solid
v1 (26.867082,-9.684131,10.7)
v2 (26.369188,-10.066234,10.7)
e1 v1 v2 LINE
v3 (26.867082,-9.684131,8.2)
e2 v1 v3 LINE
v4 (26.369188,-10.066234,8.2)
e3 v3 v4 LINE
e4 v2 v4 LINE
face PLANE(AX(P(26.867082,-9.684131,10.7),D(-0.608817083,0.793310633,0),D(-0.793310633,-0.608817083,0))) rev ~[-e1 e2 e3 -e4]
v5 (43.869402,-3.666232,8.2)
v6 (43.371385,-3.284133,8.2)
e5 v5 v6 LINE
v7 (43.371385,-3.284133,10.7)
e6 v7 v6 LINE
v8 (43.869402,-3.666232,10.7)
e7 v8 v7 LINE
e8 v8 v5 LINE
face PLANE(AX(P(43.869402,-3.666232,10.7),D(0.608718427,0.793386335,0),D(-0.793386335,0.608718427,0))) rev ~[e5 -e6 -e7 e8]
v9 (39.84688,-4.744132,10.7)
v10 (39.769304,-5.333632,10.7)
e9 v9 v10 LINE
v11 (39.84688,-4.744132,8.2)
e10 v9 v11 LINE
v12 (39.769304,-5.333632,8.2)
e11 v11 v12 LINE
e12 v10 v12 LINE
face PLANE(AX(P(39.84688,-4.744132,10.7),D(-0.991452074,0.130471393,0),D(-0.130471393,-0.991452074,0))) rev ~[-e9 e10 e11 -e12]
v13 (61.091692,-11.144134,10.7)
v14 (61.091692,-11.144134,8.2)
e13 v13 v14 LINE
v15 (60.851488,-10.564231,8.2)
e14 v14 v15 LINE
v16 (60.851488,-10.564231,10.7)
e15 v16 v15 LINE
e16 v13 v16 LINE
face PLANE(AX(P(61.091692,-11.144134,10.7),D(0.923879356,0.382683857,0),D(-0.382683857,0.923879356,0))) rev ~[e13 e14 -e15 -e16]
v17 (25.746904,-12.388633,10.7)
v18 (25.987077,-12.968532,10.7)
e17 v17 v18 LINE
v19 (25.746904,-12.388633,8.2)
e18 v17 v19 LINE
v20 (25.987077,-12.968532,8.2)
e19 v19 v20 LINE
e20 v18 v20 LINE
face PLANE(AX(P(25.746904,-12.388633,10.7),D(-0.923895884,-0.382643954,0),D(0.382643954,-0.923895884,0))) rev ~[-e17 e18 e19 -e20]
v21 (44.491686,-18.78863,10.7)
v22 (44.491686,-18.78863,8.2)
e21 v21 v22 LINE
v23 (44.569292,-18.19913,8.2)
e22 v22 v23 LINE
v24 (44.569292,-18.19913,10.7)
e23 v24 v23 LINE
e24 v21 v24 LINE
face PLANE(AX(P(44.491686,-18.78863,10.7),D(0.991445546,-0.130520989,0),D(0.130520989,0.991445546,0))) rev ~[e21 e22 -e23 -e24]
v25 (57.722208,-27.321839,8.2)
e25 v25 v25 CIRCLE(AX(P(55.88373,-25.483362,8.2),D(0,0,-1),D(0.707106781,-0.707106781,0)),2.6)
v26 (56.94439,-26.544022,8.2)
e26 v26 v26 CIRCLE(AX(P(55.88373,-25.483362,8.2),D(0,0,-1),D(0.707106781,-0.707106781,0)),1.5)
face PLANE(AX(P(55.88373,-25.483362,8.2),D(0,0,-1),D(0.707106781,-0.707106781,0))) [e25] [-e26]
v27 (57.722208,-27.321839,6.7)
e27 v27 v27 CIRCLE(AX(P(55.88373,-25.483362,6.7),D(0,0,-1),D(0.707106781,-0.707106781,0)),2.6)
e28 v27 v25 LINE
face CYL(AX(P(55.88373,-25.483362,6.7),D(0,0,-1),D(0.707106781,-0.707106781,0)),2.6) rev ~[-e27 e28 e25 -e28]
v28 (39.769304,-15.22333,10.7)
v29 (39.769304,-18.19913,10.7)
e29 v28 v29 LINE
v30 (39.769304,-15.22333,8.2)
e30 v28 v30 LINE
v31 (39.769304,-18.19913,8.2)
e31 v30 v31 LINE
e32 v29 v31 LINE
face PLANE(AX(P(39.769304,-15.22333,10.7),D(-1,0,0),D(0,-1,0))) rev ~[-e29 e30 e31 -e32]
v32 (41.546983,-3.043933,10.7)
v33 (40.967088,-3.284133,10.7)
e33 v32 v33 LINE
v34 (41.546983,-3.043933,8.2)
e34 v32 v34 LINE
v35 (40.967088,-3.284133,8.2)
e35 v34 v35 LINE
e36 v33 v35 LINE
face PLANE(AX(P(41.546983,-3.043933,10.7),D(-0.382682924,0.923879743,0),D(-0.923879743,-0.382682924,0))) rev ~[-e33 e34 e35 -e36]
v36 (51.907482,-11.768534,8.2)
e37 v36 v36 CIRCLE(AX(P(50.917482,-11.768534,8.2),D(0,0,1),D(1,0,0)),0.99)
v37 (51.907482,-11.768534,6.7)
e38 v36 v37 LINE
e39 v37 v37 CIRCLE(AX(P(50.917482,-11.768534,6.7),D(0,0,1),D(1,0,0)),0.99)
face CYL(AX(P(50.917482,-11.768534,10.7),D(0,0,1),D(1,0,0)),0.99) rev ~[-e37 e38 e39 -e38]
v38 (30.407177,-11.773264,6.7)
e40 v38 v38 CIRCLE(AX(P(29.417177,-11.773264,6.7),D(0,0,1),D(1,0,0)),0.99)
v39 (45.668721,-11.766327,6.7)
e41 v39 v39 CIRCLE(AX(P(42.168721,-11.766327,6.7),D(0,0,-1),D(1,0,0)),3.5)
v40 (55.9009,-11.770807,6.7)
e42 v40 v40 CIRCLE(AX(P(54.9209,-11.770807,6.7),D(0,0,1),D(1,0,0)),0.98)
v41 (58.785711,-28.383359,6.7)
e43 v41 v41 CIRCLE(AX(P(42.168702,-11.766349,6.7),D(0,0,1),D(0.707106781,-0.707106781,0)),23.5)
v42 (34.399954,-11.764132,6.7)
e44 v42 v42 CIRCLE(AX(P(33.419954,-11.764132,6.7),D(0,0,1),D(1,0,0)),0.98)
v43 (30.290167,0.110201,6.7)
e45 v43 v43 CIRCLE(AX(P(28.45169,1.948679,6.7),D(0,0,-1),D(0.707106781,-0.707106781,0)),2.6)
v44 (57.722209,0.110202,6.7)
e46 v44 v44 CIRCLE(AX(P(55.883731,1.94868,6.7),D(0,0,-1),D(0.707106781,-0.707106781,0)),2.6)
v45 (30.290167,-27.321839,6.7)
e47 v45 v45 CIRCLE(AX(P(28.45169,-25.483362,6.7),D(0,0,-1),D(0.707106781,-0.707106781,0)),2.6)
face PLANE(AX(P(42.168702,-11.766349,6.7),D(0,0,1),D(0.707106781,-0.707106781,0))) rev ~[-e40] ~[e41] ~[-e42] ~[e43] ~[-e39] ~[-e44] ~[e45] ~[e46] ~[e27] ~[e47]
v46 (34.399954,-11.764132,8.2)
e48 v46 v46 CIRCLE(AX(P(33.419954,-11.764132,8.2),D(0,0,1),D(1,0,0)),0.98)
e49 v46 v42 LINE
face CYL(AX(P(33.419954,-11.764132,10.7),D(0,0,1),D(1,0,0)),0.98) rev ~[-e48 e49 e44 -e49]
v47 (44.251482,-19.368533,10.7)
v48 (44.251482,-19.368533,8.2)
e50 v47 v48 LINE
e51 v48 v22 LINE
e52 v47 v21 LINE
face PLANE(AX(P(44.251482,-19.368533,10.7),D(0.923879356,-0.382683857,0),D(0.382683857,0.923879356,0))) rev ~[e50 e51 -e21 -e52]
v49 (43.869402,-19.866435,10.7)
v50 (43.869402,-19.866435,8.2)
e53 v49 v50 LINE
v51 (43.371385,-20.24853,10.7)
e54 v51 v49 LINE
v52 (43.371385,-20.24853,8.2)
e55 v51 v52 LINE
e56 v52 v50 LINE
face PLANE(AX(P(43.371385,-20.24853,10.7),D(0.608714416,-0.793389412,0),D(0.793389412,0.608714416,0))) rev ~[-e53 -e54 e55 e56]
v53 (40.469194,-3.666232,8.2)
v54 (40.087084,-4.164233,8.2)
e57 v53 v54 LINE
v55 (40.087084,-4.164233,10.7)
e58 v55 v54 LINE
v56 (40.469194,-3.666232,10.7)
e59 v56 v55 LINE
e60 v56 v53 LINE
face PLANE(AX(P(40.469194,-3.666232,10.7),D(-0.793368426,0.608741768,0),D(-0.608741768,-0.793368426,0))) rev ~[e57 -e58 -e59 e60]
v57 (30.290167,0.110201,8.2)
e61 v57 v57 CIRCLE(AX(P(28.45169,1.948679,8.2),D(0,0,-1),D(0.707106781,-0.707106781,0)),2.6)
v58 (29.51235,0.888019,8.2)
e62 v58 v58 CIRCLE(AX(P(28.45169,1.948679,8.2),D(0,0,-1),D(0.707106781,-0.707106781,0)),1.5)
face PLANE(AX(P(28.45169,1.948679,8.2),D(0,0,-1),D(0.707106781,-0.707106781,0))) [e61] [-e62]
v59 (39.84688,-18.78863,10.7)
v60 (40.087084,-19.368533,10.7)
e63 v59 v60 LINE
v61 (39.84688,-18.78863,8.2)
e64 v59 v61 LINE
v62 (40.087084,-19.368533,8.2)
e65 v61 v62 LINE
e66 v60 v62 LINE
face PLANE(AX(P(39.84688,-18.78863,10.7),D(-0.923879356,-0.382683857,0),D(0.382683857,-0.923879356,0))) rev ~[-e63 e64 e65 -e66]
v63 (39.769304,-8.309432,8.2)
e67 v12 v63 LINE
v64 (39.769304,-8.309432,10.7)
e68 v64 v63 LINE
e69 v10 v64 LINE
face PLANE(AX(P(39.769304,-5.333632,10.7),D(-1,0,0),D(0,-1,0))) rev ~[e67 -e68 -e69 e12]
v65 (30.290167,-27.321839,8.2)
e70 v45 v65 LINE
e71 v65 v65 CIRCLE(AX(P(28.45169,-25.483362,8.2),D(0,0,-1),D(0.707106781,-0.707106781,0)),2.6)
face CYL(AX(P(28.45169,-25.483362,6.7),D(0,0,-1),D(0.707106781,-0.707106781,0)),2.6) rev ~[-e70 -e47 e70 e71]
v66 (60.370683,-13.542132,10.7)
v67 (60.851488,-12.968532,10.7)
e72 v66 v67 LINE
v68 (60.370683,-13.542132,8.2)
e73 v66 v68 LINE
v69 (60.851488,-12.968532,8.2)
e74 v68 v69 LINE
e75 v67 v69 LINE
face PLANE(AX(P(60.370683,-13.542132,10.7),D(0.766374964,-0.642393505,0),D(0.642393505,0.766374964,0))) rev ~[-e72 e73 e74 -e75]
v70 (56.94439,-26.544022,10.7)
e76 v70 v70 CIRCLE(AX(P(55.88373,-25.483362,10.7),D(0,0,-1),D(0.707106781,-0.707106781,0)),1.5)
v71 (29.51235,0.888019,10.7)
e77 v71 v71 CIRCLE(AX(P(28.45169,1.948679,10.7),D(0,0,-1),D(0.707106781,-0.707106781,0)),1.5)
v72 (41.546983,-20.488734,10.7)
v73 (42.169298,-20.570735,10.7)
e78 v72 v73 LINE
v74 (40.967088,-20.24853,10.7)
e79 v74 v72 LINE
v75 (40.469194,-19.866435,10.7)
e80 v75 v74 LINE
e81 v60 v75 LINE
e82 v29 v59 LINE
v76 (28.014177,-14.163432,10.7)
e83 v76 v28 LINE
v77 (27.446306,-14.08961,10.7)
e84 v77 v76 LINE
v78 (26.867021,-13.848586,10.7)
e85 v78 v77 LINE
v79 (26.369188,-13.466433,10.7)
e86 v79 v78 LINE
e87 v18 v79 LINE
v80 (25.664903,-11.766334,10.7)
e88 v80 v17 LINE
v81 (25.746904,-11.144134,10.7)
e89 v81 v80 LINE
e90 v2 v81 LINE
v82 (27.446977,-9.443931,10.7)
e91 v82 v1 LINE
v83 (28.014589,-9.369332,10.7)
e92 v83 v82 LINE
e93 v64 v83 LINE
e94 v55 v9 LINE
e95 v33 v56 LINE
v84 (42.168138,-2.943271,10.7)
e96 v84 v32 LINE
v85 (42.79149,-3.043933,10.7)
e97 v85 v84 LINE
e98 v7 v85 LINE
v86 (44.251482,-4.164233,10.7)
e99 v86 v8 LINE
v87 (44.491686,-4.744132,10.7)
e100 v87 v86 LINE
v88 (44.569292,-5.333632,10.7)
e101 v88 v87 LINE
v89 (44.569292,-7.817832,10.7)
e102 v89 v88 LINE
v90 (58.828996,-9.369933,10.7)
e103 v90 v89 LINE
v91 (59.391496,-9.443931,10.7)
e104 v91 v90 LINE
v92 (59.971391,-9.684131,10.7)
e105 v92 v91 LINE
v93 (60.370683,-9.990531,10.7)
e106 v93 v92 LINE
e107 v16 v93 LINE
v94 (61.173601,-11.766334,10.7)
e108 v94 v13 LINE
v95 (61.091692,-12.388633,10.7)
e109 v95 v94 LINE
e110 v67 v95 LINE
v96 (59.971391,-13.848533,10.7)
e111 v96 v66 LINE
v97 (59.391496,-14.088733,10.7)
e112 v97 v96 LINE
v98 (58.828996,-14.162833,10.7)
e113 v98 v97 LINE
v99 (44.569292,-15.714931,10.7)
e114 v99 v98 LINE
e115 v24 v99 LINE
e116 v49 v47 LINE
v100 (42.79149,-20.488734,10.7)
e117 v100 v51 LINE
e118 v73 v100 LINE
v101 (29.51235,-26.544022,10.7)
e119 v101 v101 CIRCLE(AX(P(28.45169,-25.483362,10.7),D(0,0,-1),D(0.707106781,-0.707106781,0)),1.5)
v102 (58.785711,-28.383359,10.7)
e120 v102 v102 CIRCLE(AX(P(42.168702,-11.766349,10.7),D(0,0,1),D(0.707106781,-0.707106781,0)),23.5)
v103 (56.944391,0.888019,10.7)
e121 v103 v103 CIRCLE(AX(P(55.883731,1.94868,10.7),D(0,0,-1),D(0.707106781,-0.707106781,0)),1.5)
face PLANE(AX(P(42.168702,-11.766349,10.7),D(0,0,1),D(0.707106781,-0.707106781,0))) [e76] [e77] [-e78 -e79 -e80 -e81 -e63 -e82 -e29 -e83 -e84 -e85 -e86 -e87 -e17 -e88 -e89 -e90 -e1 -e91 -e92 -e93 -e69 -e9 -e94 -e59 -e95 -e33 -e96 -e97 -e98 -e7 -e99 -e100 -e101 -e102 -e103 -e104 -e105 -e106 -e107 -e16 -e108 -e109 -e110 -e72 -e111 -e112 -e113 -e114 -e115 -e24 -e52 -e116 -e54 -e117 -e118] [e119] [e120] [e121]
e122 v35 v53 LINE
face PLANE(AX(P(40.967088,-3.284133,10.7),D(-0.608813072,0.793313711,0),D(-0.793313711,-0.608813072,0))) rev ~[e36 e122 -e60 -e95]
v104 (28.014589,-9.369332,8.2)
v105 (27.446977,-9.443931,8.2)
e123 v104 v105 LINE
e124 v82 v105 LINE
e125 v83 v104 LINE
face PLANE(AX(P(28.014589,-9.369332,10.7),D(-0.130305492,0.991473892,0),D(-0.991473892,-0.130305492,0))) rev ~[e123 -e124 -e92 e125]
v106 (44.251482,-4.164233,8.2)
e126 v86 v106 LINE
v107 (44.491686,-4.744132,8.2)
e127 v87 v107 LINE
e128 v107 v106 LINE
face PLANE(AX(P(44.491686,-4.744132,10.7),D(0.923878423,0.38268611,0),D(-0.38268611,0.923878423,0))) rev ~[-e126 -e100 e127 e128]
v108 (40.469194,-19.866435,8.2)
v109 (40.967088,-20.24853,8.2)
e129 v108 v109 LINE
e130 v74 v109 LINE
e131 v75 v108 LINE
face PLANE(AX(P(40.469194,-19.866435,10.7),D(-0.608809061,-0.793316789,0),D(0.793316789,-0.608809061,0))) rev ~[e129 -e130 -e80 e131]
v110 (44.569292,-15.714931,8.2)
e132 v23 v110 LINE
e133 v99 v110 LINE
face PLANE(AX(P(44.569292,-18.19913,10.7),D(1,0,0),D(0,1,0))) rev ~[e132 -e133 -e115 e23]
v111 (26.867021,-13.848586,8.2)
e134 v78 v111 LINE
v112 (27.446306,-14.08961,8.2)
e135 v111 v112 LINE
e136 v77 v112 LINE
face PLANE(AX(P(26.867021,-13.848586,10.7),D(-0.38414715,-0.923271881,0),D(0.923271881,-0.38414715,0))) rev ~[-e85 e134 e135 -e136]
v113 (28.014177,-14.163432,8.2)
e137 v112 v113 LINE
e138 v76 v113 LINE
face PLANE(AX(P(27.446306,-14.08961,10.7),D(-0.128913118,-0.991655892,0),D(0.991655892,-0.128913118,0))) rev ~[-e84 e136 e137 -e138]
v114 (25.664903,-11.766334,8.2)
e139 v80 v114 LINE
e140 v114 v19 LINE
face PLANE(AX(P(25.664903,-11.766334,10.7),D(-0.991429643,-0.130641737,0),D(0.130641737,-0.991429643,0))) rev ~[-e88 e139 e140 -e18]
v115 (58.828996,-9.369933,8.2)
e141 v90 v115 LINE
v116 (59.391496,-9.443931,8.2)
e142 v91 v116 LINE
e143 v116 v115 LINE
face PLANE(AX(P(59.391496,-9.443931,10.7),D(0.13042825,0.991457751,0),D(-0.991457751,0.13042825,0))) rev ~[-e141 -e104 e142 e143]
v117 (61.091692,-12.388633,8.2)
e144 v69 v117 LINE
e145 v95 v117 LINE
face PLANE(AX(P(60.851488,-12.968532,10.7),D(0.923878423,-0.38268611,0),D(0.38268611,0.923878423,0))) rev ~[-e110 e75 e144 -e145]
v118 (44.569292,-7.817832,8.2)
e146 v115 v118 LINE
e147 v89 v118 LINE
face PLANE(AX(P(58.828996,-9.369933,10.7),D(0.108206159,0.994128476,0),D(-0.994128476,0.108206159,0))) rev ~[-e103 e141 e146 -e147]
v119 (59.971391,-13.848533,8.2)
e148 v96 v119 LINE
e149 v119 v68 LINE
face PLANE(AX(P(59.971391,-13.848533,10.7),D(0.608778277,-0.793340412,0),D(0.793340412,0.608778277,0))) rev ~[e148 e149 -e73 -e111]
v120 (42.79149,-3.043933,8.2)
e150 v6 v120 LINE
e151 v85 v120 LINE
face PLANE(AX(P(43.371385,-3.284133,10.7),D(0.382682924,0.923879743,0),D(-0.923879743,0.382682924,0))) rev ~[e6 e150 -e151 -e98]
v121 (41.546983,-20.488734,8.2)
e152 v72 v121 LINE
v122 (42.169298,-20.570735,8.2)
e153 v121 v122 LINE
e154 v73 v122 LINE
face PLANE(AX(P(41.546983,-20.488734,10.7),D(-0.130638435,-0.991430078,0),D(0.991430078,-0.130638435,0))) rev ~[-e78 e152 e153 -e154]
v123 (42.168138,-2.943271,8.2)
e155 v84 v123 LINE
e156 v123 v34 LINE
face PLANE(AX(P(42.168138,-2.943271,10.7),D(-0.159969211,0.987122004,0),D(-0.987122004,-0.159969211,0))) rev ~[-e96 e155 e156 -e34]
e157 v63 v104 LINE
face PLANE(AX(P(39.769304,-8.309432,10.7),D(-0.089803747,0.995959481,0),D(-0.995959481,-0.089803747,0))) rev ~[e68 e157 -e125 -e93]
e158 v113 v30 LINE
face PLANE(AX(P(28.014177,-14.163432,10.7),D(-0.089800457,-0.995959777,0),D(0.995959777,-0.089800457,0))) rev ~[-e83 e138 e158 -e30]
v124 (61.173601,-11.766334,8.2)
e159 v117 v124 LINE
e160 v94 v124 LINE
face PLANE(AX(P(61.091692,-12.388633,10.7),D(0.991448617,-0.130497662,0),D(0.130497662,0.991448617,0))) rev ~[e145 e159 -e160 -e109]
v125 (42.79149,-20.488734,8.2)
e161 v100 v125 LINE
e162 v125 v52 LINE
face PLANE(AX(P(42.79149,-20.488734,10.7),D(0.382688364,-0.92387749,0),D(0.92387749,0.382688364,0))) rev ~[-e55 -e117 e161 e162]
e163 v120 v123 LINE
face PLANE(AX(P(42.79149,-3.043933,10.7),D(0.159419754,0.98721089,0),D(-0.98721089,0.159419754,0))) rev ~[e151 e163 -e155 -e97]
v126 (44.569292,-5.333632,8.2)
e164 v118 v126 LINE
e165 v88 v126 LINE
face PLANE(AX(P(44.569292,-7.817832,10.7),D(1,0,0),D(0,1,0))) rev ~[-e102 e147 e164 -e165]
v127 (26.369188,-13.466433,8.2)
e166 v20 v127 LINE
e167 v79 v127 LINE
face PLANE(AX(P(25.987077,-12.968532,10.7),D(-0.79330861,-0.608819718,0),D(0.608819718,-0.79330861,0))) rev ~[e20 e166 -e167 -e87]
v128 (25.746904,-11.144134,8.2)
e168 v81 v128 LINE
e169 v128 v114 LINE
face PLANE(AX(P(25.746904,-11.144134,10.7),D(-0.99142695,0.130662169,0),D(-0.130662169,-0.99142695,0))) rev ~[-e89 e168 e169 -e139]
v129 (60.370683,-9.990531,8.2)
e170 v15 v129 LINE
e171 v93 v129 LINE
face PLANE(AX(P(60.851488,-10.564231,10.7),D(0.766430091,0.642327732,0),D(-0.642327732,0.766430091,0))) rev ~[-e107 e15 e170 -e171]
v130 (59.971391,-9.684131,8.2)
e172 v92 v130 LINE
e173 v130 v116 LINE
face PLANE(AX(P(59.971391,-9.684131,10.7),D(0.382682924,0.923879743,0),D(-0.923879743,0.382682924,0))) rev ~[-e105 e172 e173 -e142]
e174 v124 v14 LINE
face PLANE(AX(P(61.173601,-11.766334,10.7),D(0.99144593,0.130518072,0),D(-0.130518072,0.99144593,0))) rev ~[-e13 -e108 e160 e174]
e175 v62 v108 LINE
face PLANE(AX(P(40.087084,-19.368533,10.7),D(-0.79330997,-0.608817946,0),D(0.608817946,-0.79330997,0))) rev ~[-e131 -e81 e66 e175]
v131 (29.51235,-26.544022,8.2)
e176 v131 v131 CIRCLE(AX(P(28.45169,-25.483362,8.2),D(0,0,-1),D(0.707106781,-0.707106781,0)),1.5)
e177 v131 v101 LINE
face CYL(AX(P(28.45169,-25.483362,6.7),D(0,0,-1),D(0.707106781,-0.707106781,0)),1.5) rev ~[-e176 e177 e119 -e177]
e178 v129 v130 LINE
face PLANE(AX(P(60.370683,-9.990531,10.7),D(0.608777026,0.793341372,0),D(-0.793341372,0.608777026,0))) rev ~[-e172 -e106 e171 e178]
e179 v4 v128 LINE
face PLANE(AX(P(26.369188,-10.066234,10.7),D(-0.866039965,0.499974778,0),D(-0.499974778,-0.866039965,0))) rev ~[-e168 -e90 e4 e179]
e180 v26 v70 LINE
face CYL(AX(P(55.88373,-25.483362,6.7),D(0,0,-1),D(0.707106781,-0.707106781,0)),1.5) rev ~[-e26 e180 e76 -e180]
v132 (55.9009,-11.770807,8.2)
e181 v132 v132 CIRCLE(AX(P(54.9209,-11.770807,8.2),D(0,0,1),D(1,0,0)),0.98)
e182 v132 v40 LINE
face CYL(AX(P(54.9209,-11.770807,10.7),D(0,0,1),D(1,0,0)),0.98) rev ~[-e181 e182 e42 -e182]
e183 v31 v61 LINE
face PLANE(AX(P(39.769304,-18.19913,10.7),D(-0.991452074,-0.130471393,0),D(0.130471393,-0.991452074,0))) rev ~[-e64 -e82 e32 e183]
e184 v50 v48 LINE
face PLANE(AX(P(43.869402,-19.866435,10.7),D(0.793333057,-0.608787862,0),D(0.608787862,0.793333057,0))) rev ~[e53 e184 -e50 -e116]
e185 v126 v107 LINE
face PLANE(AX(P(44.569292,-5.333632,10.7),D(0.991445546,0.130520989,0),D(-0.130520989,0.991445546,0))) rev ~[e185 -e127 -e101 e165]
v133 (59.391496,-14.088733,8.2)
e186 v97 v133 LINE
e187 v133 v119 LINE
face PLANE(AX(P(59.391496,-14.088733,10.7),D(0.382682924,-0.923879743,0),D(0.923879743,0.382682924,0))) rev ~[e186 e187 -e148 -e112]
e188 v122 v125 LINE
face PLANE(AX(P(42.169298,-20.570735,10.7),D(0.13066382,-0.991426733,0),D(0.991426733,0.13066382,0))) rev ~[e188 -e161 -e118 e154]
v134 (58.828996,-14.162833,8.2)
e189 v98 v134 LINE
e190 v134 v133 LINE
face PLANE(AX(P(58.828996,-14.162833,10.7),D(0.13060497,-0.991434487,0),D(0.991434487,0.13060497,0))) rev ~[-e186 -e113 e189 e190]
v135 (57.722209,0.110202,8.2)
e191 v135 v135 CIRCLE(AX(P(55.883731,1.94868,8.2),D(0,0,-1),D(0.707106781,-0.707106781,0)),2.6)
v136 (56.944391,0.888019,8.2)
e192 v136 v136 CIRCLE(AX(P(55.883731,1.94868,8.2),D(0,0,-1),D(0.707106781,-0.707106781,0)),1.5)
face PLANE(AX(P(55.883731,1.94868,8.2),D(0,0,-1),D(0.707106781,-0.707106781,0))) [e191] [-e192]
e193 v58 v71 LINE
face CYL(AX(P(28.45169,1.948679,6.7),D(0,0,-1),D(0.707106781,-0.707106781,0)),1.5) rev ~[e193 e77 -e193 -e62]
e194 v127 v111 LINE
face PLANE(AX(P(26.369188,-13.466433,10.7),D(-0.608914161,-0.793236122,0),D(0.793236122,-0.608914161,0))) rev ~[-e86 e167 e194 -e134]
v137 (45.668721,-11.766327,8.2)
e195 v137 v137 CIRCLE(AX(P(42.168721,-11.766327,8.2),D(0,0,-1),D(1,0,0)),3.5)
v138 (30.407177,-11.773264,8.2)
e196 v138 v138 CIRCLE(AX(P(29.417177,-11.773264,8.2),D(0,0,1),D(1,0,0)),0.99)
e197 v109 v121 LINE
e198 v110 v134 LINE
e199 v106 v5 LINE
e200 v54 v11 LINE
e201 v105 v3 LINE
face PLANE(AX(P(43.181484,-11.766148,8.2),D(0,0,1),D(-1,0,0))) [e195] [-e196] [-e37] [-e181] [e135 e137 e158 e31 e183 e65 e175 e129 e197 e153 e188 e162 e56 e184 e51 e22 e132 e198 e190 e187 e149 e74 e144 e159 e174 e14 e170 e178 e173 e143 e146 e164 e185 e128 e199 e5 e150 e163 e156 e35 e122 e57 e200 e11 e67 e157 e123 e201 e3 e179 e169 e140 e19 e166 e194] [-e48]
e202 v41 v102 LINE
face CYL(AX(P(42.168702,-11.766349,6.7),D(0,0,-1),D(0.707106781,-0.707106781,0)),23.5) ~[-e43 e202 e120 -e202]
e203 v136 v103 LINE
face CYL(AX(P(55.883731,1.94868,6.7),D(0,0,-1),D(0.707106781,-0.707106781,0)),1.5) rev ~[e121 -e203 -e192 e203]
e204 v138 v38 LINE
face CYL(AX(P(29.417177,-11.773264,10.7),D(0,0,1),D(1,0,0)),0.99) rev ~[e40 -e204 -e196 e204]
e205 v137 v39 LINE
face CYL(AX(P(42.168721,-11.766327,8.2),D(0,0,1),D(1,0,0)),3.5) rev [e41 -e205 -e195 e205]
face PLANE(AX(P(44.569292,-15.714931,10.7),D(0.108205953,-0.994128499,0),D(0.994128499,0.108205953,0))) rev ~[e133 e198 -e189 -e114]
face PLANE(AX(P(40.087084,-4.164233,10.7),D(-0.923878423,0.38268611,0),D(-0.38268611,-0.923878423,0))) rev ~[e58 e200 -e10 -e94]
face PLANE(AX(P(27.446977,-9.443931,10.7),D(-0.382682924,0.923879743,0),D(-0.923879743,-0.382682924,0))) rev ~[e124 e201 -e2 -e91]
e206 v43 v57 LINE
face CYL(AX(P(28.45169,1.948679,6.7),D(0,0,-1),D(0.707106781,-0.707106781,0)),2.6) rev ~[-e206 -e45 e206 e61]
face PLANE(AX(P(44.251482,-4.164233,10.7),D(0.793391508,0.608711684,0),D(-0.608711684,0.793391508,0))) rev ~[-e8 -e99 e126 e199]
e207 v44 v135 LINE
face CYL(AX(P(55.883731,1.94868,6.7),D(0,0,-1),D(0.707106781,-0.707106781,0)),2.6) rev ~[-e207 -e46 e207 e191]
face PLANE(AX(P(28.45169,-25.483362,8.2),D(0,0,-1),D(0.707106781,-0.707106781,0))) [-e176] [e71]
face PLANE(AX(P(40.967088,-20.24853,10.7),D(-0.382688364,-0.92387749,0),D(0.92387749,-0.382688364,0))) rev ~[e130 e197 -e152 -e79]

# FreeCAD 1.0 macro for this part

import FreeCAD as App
import Part
import Sketcher

doc = App.newDocument("Part")
body = doc.addObject("PartDesign::Body", "Body")

# Sketch on XY plane
sketch1 = body.newObject("Sketcher::SketchObject", "Sketch")
sketch1.AttachmentSupport = (doc.getObject("XY_Plane"), [""])
sketch1.MapMode = "FlatFace"
sketch1.AttachmentOffset = App.Placement(App.Vector(0, 0, -7), App.Rotation())
sketch1.addGeometry(Part.Circle(App.Vector(100.138196, 1.761986, 0), App.Vector(0, 0, 1), 0.99), False)
sketch1.addConstraint([
    Sketcher.Constraint("Diameter", 0, 1.98),
    Sketcher.Constraint("DistanceX", -1, 1, 0, 3, 100.138196),
    Sketcher.Constraint("DistanceY", -1, 1, 0, 3, 1.761986),
])
pad1 = body.newObject("PartDesign::Pad", "Pad")
pad1.Profile = sketch1
pad1.Length = 4
body2 = doc.addObject("PartDesign::Body", "Body001")

# Sketch on XY plane
sketch2 = body2.newObject("Sketcher::SketchObject", "Sketch001")
sketch2.AttachmentSupport = (doc.getObject("XY_Plane001"), [""])
sketch2.MapMode = "FlatFace"
sketch2.AttachmentOffset = App.Placement(App.Vector(0, 0, -7), App.Rotation())
sketch2.addGeometry(Part.Circle(App.Vector(104.140973, 1.752854, 0), App.Vector(0, 0, 1), 0.98), False)
sketch2.addConstraint([
    Sketcher.Constraint("Diameter", 0, 1.96),
    Sketcher.Constraint("DistanceX", -1, 1, 0, 3, 104.140973),
    Sketcher.Constraint("DistanceY", -1, 1, 0, 3, 1.752854),
])
pad2 = body2.newObject("PartDesign::Pad", "Pad001")
pad2.Profile = sketch2
pad2.Length = 4
body3 = doc.addObject("PartDesign::Body", "Body002")

# Sketch on XY plane
sketch3 = body3.newObject("Sketcher::SketchObject", "Sketch002")
sketch3.AttachmentSupport = (doc.getObject("XY_Plane002"), [""])
sketch3.MapMode = "FlatFace"
sketch3.AttachmentOffset = App.Placement(App.Vector(0, 0, -7), App.Rotation())
sketch3.addGeometry(Part.Circle(App.Vector(121.638501, 1.757256, 0), App.Vector(0, 0, 1), 0.99), False)
sketch3.addConstraint([
    Sketcher.Constraint("Diameter", 0, 1.98),
    Sketcher.Constraint("DistanceX", -1, 1, 0, 3, 121.638501),
    Sketcher.Constraint("DistanceY", -1, 1, 0, 3, 1.757256),
])
pad3 = body3.newObject("PartDesign::Pad", "Pad002")
pad3.Profile = sketch3
pad3.Length = 4
body4 = doc.addObject("PartDesign::Body", "Body003")

# Sketch on XY plane
sketch4 = body4.newObject("Sketcher::SketchObject", "Sketch003")
sketch4.AttachmentSupport = (doc.getObject("XY_Plane003"), [""])
sketch4.MapMode = "FlatFace"
sketch4.AttachmentOffset = App.Placement(App.Vector(0, 0, -7), App.Rotation())
sketch4.addGeometry(Part.Circle(App.Vector(125.641919, 1.759529, 0), App.Vector(0, 0, 1), 0.98), False)
sketch4.addConstraint([
    Sketcher.Constraint("Diameter", 0, 1.96),
    Sketcher.Constraint("DistanceX", -1, 1, 0, 3, 125.641919),
    Sketcher.Constraint("DistanceY", -1, 1, 0, 3, 1.759529),
])
pad4 = body4.newObject("PartDesign::Pad", "Pad003")
pad4.Profile = sketch4
pad4.Length = 4
body5 = doc.addObject("PartDesign::Body", "Body004")

# Sketch on XY plane
sketch5 = body5.newObject("Sketcher::SketchObject", "Sketch004")
sketch5.AttachmentSupport = (doc.getObject("XY_Plane004"), [""])
sketch5.MapMode = "FlatFace"
sketch5.AttachmentOffset = App.Placement(App.Vector(0, 0, 32.5), App.Rotation())
sketch5.addGeometry(Part.Circle(App.Vector(115.082764, -1.512482, 0), App.Vector(0, 0, 1), 3.5), False)
sketch5.addConstraint([
    Sketcher.Constraint("Diameter", 0, 7.0),
    Sketcher.Constraint("DistanceX", -1, 1, 0, 3, 115.082764),
    Sketcher.Constraint("DistanceY", 0, 3, -1, 1, 1.512482),
])
pad5 = body5.newObject("PartDesign::Pad", "Pad004")
pad5.Profile = sketch5
pad5.Length = 1.5
body6 = doc.addObject("PartDesign::Body", "Body005")

# Sketch on XY plane
sketch6 = body6.newObject("Sketcher::SketchObject", "Sketch005")
sketch6.AttachmentSupport = (doc.getObject("XY_Plane005"), [""])
sketch6.MapMode = "FlatFace"
sketch6.AttachmentOffset = App.Placement(App.Vector(0, 0, 32.5), App.Rotation())
sketch6.addGeometry([
    Part.LineSegment(App.Vector(406.834, 56.5716, 0), App.Vector(418.588715, 55.5117, 0)),  # 0
    Part.LineSegment(App.Vector(418.588715, 55.5117, 0), App.Vector(418.588715, 52.5359, 0)),  # 1
    Part.LineSegment(App.Vector(418.588715, 52.5359, 0), App.Vector(418.666291, 51.9464, 0)),  # 2
    Part.LineSegment(App.Vector(418.666291, 51.9464, 0), App.Vector(418.906495, 51.366501, 0)),  # 3
    Part.LineSegment(App.Vector(418.906495, 51.366501, 0), App.Vector(419.288605, 50.8685, 0)),  # 4
    Part.LineSegment(App.Vector(419.288605, 50.8685, 0), App.Vector(419.786499, 50.486401, 0)),  # 5
    Part.LineSegment(App.Vector(419.786499, 50.486401, 0), App.Vector(420.366394, 50.246201, 0)),  # 6
    Part.LineSegment(App.Vector(420.366394, 50.246201, 0), App.Vector(420.987549, 50.145539, 0)),  # 7
    Part.LineSegment(App.Vector(420.987549, 50.145539, 0), App.Vector(421.610901, 50.246201, 0)),  # 8
    Part.LineSegment(App.Vector(421.610901, 50.246201, 0), App.Vector(422.190796, 50.486401, 0)),  # 9
    Part.LineSegment(App.Vector(422.190796, 50.486401, 0), App.Vector(422.688813, 50.8685, 0)),  # 10
    Part.LineSegment(App.Vector(422.688813, 50.8685, 0), App.Vector(423.070893, 51.366501, 0)),  # 11
    Part.LineSegment(App.Vector(423.070893, 51.366501, 0), App.Vector(423.311097, 51.9464, 0)),  # 12
    Part.LineSegment(App.Vector(423.311097, 51.9464, 0), App.Vector(423.388703, 52.5359, 0)),  # 13
    Part.LineSegment(App.Vector(423.388703, 52.5359, 0), App.Vector(423.388703, 55.0201, 0)),  # 14
    Part.LineSegment(App.Vector(423.388703, 55.0201, 0), App.Vector(437.648407, 56.572201, 0)),  # 15
    Part.LineSegment(App.Vector(437.648407, 56.572201, 0), App.Vector(438.210907, 56.646199, 0)),  # 16
    Part.LineSegment(App.Vector(438.210907, 56.646199, 0), App.Vector(438.790802, 56.886399, 0)),  # 17
    Part.LineSegment(App.Vector(438.790802, 56.886399, 0), App.Vector(439.190094, 57.192799, 0)),  # 18
    Part.LineSegment(App.Vector(439.190094, 57.192799, 0), App.Vector(439.670899, 57.766499, 0)),  # 19
    Part.LineSegment(App.Vector(439.670899, 57.766499, 0), App.Vector(439.911103, 58.346402, 0)),  # 20
    Part.LineSegment(App.Vector(439.911103, 58.346402, 0), App.Vector(439.993012, 58.968602, 0)),  # 21
    Part.LineSegment(App.Vector(439.993012, 58.968602, 0), App.Vector(439.911103, 59.590901, 0)),  # 22
    Part.LineSegment(App.Vector(439.911103, 59.590901, 0), App.Vector(439.670899, 60.1708, 0)),  # 23
    Part.LineSegment(App.Vector(439.670899, 60.1708, 0), App.Vector(439.190094, 60.7444, 0)),  # 24
    Part.LineSegment(App.Vector(439.190094, 60.7444, 0), App.Vector(438.790802, 61.050801, 0)),  # 25
    Part.LineSegment(App.Vector(438.790802, 61.050801, 0), App.Vector(438.210907, 61.291001, 0)),  # 26
    Part.LineSegment(App.Vector(438.210907, 61.291001, 0), App.Vector(437.648407, 61.365101, 0)),  # 27
    Part.LineSegment(App.Vector(437.648407, 61.365101, 0), App.Vector(423.388703, 62.917199, 0)),  # 28
    Part.LineSegment(App.Vector(423.388703, 62.917199, 0), App.Vector(423.388703, 65.401398, 0)),  # 29
    Part.LineSegment(App.Vector(423.388703, 65.401398, 0), App.Vector(423.311097, 65.990898, 0)),  # 30
    Part.LineSegment(App.Vector(423.311097, 65.990898, 0), App.Vector(423.070893, 66.570801, 0)),  # 31
    Part.LineSegment(App.Vector(423.070893, 66.570801, 0), App.Vector(422.688813, 67.068703, 0)),  # 32
    Part.LineSegment(App.Vector(422.688813, 67.068703, 0), App.Vector(422.190796, 67.450798, 0)),  # 33
    Part.LineSegment(App.Vector(422.190796, 67.450798, 0), App.Vector(421.610901, 67.691002, 0)),  # 34
    Part.LineSegment(App.Vector(421.610901, 67.691002, 0), App.Vector(420.988709, 67.773003, 0)),  # 35
    Part.LineSegment(App.Vector(420.988709, 67.773003, 0), App.Vector(420.366394, 67.691002, 0)),  # 36
    Part.LineSegment(App.Vector(420.366394, 67.691002, 0), App.Vector(419.786499, 67.450798, 0)),  # 37
    Part.LineSegment(App.Vector(419.786499, 67.450798, 0), App.Vector(419.288605, 67.068703, 0)),  # 38
    Part.LineSegment(App.Vector(419.288605, 67.068703, 0), App.Vector(418.906495, 66.570801, 0)),  # 39
    Part.LineSegment(App.Vector(418.906495, 66.570801, 0), App.Vector(418.666291, 65.990898, 0)),  # 40
    Part.LineSegment(App.Vector(418.666291, 65.990898, 0), App.Vector(418.588715, 65.401398, 0)),  # 41
    Part.LineSegment(App.Vector(418.588715, 65.401398, 0), App.Vector(418.588715, 62.425598, 0)),  # 42
    Part.LineSegment(App.Vector(418.588715, 62.425598, 0), App.Vector(406.833588, 61.3657, 0)),  # 43
    Part.LineSegment(App.Vector(406.833588, 61.3657, 0), App.Vector(406.265717, 61.291878, 0)),  # 44
    Part.LineSegment(App.Vector(406.265717, 61.291878, 0), App.Vector(405.686432, 61.050854, 0)),  # 45
    Part.LineSegment(App.Vector(405.686432, 61.050854, 0), App.Vector(405.188599, 60.668701, 0)),  # 46
    Part.LineSegment(App.Vector(405.188599, 60.668701, 0), App.Vector(404.806488, 60.1708, 0)),  # 47
    Part.LineSegment(App.Vector(404.806488, 60.1708, 0), App.Vector(404.566315, 59.590901, 0)),  # 48
    Part.LineSegment(App.Vector(404.566315, 59.590901, 0), App.Vector(404.484314, 58.968602, 0)),  # 49
    Part.LineSegment(App.Vector(404.484314, 58.968602, 0), App.Vector(404.566315, 58.346402, 0)),  # 50
    Part.LineSegment(App.Vector(404.566315, 58.346402, 0), App.Vector(405.188599, 57.268502, 0)),  # 51
    Part.LineSegment(App.Vector(405.188599, 57.268502, 0), App.Vector(405.686493, 56.886399, 0)),  # 52
    Part.LineSegment(App.Vector(405.686493, 56.886399, 0), App.Vector(406.266388, 56.646199, 0)),  # 53
    Part.LineSegment(App.Vector(406.266388, 56.646199, 0), App.Vector(406.834, 56.5716, 0)),  # 54
], False)
sketch6.addConstraint([
    Sketcher.Constraint("Coincident", 0, 2, 1, 1),
    Sketcher.Constraint("Coincident", 1, 2, 2, 1),
    Sketcher.Constraint("Coincident", 2, 2, 3, 1),
    Sketcher.Constraint("Coincident", 3, 2, 4, 1),
    Sketcher.Constraint("Coincident", 4, 2, 5, 1),
    Sketcher.Constraint("Coincident", 5, 2, 6, 1),
    Sketcher.Constraint("Coincident", 6, 2, 7, 1),
    Sketcher.Constraint("Coincident", 7, 2, 8, 1),
    Sketcher.Constraint("Coincident", 8, 2, 9, 1),
    Sketcher.Constraint("Coincident", 9, 2, 10, 1),
    Sketcher.Constraint("Coincident", 10, 2, 11, 1),
    Sketcher.Constraint("Coincident", 11, 2, 12, 1),
    Sketcher.Constraint("Coincident", 12, 2, 13, 1),
    Sketcher.Constraint("Coincident", 13, 2, 14, 1),
    Sketcher.Constraint("Coincident", 14, 2, 15, 1),
    Sketcher.Constraint("Coincident", 15, 2, 16, 1),
    Sketcher.Constraint("Coincident", 16, 2, 17, 1),
    Sketcher.Constraint("Coincident", 17, 2, 18, 1),
    Sketcher.Constraint("Coincident", 18, 2, 19, 1),
    Sketcher.Constraint("Coincident", 19, 2, 20, 1),
    Sketcher.Constraint("Coincident", 20, 2, 21, 1),
    Sketcher.Constraint("Coincident", 21, 2, 22, 1),
    Sketcher.Constraint("Coincident", 22, 2, 23, 1),
    Sketcher.Constraint("Coincident", 23, 2, 24, 1),
    Sketcher.Constraint("Coincident", 24, 2, 25, 1),
    Sketcher.Constraint("Coincident", 25, 2, 26, 1),
    Sketcher.Constraint("Coincident", 26, 2, 27, 1),
    Sketcher.Constraint("Coincident", 27, 2, 28, 1),
    Sketcher.Constraint("Coincident", 28, 2, 29, 1),
    Sketcher.Constraint("Coincident", 29, 2, 30, 1),
    Sketcher.Constraint("Coincident", 30, 2, 31, 1),
    Sketcher.Constraint("Coincident", 31, 2, 32, 1),
    Sketcher.Constraint("Coincident", 32, 2, 33, 1),
    Sketcher.Constraint("Coincident", 33, 2, 34, 1),
    Sketcher.Constraint("Coincident", 34, 2, 35, 1),
    Sketcher.Constraint("Coincident", 35, 2, 36, 1),
    Sketcher.Constraint("Coincident", 36, 2, 37, 1),
    Sketcher.Constraint("Coincident", 37, 2, 38, 1),
    Sketcher.Constraint("Coincident", 38, 2, 39, 1),
    Sketcher.Constraint("Coincident", 39, 2, 40, 1),
    Sketcher.Constraint("Coincident", 40, 2, 41, 1),
    Sketcher.Constraint("Coincident", 41, 2, 42, 1),
    Sketcher.Constraint("Coincident", 42, 2, 43, 1),
    Sketcher.Constraint("Coincident", 43, 2, 44, 1),
    Sketcher.Constraint("Coincident", 44, 2, 45, 1),
    Sketcher.Constraint("Coincident", 45, 2, 46, 1),
    Sketcher.Constraint("Coincident", 46, 2, 47, 1),
    Sketcher.Constraint("Coincident", 47, 2, 48, 1),
    Sketcher.Constraint("Coincident", 48, 2, 49, 1),
    Sketcher.Constraint("Coincident", 49, 2, 50, 1),
    Sketcher.Constraint("Coincident", 50, 2, 51, 1),
    Sketcher.Constraint("Coincident", 51, 2, 52, 1),
    Sketcher.Constraint("Coincident", 52, 2, 53, 1),
    Sketcher.Constraint("Coincident", 53, 2, 54, 1),
    Sketcher.Constraint("Coincident", 54, 2, 0, 1),
    Sketcher.Constraint("Vertical", 1),
    Sketcher.Constraint("Vertical", 14),
    Sketcher.Constraint("Vertical", 29),
    Sketcher.Constraint("Vertical", 42),
    Sketcher.Constraint("Parallel", 9, 17),
    Sketcher.Constraint("Perpendicular", 6, 20),
    Sketcher.Constraint("Parallel", 3, 23),
    Sketcher.Constraint("Perpendicular", 20, 26),
    Sketcher.Constraint("Perpendicular", 17, 31),
    Sketcher.Constraint("Perpendicular", 26, 40),
    Sketcher.Constraint("Perpendicular", 39, 52),
    Sketcher.Constraint("Perpendicular", 40, 53),
    Sketcher.Constraint("Horizontal", 6, 2, 8, 2),
    Sketcher.Constraint("Horizontal", 5, 2, 9, 2),
    Sketcher.Constraint("Horizontal", 4, 2, 10, 2),
    Sketcher.Constraint("Horizontal", 3, 2, 11, 2),
    Sketcher.Constraint("Horizontal", 2, 2, 12, 2),
    Sketcher.Constraint("Horizontal", 1, 2, 13, 2),
    Sketcher.Constraint("Horizontal", 34, 2, 36, 2),
    Sketcher.Constraint("Horizontal", 33, 2, 37, 2),
    Sketcher.Constraint("Horizontal", 32, 2, 38, 2),
    Sketcher.Constraint("Horizontal", 31, 2, 39, 2),
    Sketcher.Constraint("Horizontal", 30, 2, 40, 2),
    Sketcher.Constraint("Horizontal", 29, 2, 41, 2),
    Sketcher.Constraint("Horizontal", 23, 2, 47, 2),
    Sketcher.Constraint("Horizontal", 22, 2, 48, 2),
    Sketcher.Constraint("Horizontal", 21, 2, 49, 2),
    Sketcher.Constraint("Horizontal", 20, 2, 50, 2),
    Sketcher.Constraint("Horizontal", 17, 2, 52, 2),
    Sketcher.Constraint("Horizontal", 16, 2, 53, 2),
    Sketcher.Constraint("Vertical", 20, 2, 22, 2),
    Sketcher.Constraint("Vertical", 19, 2, 23, 2),
    Sketcher.Constraint("Vertical", 18, 2, 24, 2),
    Sketcher.Constraint("Vertical", 17, 2, 25, 2),
    Sketcher.Constraint("Vertical", 16, 2, 26, 2),
    Sketcher.Constraint("Vertical", 15, 2, 27, 2),
    Sketcher.Constraint("Vertical", 14, 2, 28, 2),
    Sketcher.Constraint("Vertical", 12, 2, 30, 2),
    Sketcher.Constraint("Vertical", 11, 2, 31, 2),
    Sketcher.Constraint("Vertical", 10, 2, 32, 2),
    Sketcher.Constraint("Vertical", 9, 2, 33, 2),
    Sketcher.Constraint("Vertical", 8, 2, 34, 2),
    Sketcher.Constraint("Vertical", 6, 2, 36, 2),
    Sketcher.Constraint("Vertical", 5, 2, 37, 2),
    Sketcher.Constraint("Vertical", 4, 2, 38, 2),
    Sketcher.Constraint("Vertical", 3, 2, 39, 2),
    Sketcher.Constraint("Vertical", 2, 2, 40, 2),
    Sketcher.Constraint("Vertical", 1, 2, 41, 2),
    Sketcher.Constraint("Vertical", 48, 2, 50, 2),
    Sketcher.Constraint("Vertical", 46, 2, 51, 2),
    Sketcher.Constraint("Equal", 14, 29),
    Sketcher.Constraint("Equal", 1, 42),
    Sketcher.Constraint("Equal", 6, 9),
    Sketcher.Constraint("Equal", 9, 17),
    Sketcher.Constraint("Equal", 12, 23),
    Sketcher.Constraint("Equal", 18, 25),
    Sketcher.Constraint("Equal", 15, 28),
    Sketcher.Constraint("Equal", 13, 30),
    Sketcher.Constraint("Equal", 26, 34),
    Sketcher.Constraint("Equal", 39, 47),
    Sketcher.Constraint("Equal", 22, 48),
    Sketcher.Constraint("Equal", 23, 49),
    Sketcher.Constraint("DistanceY", 5, 2, 2, 2, 1.459999),
    Sketcher.Constraint("DistanceY", 12, 2, 17, 2, 4.939999),
    Sketcher.Constraint("DistanceY", 23, 2, 25, 2, 0.880001),
    Sketcher.Constraint("DistanceY", 1, 2, 1, 1, 2.9758),
    Sketcher.Constraint("DistanceY", 14, 1, 14, 2, 2.4842),
    Sketcher.Constraint("DistanceY", -1, 1, 26, 2, 61.291001),
    Sketcher.Constraint("DistanceY", -1, 1, 34, 2, 67.691002),
    Sketcher.Constraint("DistanceX", -1, 1, 54, 2, 406.834),
    Sketcher.Constraint("DistanceY", 4, 2, 3, 2, 0.498001),
    Sketcher.Constraint("DistanceY", 15, 2, 16, 2, 0.073998),
    Sketcher.Constraint("DistanceY", 18, 2, 23, 2, 2.978001),
    Sketcher.Constraint("DistanceY", 20, 2, 24, 2, 2.397998),
    Sketcher.Constraint("DistanceY", 12, 2, 29, 2, 13.454998),
    Sketcher.Constraint("DistanceY", 34, 2, 35, 2, 0.082001),
    Sketcher.Constraint("DistanceY", 0, 2, 43, 2, 5.854),
    Sketcher.Constraint("DistanceY", 46, 2, 43, 2, 0.696999),
    Sketcher.Constraint("DistanceX", 49, 2, 48, 2, 0.082001),
    Sketcher.Constraint("DistanceY", -1, 1, 0, 2, 55.5117),
    Sketcher.Constraint("DistanceY", -1, 1, 2, 2, 51.9464),
    Sketcher.Constraint("DistanceY", -1, 1, 3, 2, 51.366501),
    Sketcher.Constraint("DistanceX", -1, 1, 5, 2, 419.786499),
    Sketcher.Constraint("DistanceY", -1, 1, 6, 2, 50.246201),
    Sketcher.Constraint("DistanceX", -1, 1, 8, 2, 421.610901),
    Sketcher.Constraint("DistanceX", -1, 1, 17, 2, 438.790802),
    Sketcher.Constraint("DistanceX", -1, 1, 19, 2, 439.670899),
    Sketcher.Constraint("DistanceY", -1, 1, 19, 2, 57.766499),
    Sketcher.Constraint("DistanceY", -1, 1, 21, 2, 58.968602),
    Sketcher.Constraint("DistanceX", -1, 1, 46, 2, 405.188599),
    Sketcher.Constraint("DistanceY", -1, 1, 51, 2, 57.268502),
    Sketcher.Constraint("DistanceY", -1, 1, 54, 2, 56.5716),
    Sketcher.Constraint("DistanceX", 3, 2, 6, 2, 1.459899),
    Sketcher.Constraint("DistanceX", 6, 2, 11, 2, 2.704499),
    Sketcher.Constraint("DistanceX", 15, 2, 16, 2, 0.5625),
    Sketcher.Constraint("DistanceX", 14, 2, 17, 2, 15.402099),
    Sketcher.Constraint("DistanceY", 31, 2, 32, 2, 0.497902),
    Sketcher.Constraint("DistanceX", 47, 2, 43, 2, 2.0271),
    Sketcher.Constraint("Distance", 7, 0.629259),
    Sketcher.Constraint("Distance", 10, 0.627711),
    Sketcher.Constraint("Distance", 21, 0.627568),
    Sketcher.Constraint("Distance", 24, 0.748459),
    Sketcher.Constraint("Distance", 38, 0.627611),
    Sketcher.Constraint("Distance", 44, 0.572649),
    Sketcher.Constraint("DistanceX", -1, 1, 7, 2, 420.987549),
    Sketcher.Constraint("DistanceX", -1, 1, 35, 2, 420.988709),
    Sketcher.Constraint("DistanceX", 1, 2, 3, 2, 0.31778),
    Sketcher.Constraint("DistanceX", 44, 2, 43, 2, 0.567871),
    Sketcher.Constraint("DistanceX", 45, 2, 40, 2, 12.979859),
    Sketcher.Constraint("Distance", 45, 0.627426),
])
pad6 = body6.newObject("PartDesign::Pad", "Pad005")
pad6.Profile = sketch6
pad6.Length = 2.5
body7 = doc.addObject("PartDesign::Body", "Body006")
doc.recompute()

body6.Placement = App.Placement(App.Vector(-305.905368, -60.481077, -2.5), App.Rotation(App.Vector(0, 0, 1), 0))
boolean = body7.newObject("PartDesign::Boolean", "Boolean")
boolean.Type = "Fuse"
boolean.addObjects([body6])
doc.recompute()

boolean2 = body7.newObject("PartDesign::Boolean", "Boolean001")
boolean2.Type = "Fuse"
boolean2.addObjects([body5])
body8 = doc.addObject("PartDesign::Body", "Body007")
doc.recompute()

body7.Placement = App.Placement(App.Vector(-2.193024, 3.267531, -37), App.Rotation(App.Vector(0, 0, 1), 0))
boolean3 = body8.newObject("PartDesign::Boolean", "Boolean002")
boolean3.Type = "Fuse"
boolean3.addObjects([body7])
doc.recompute()

boolean4 = body8.newObject("PartDesign::Boolean", "Boolean003")
boolean4.Type = "Fuse"
boolean4.addObjects([body])
doc.recompute()

boolean5 = body8.newObject("PartDesign::Boolean", "Boolean004")
boolean5.Type = "Fuse"
boolean5.addObjects([body2])
doc.recompute()

boolean6 = body8.newObject("PartDesign::Boolean", "Boolean005")
boolean6.Type = "Fuse"
boolean6.addObjects([body3])
doc.recompute()

boolean7 = body8.newObject("PartDesign::Boolean", "Boolean006")
boolean7.Type = "Fuse"
boolean7.addObjects([body4])
body9 = doc.addObject("PartDesign::Body", "Body008")
doc.recompute()

body8.Placement = App.Placement(App.Vector(-42.889772, -1.655092, 0), App.Rotation(App.Vector(0, 0, 1), 0))
boolean8 = body9.newObject("PartDesign::Boolean", "Boolean007")
boolean8.Type = "Fuse"
boolean8.addObjects([body8])
body10 = doc.addObject("PartDesign::Body", "Body009")

# Sketch on XY plane
sketch7 = body10.newObject("Sketcher::SketchObject", "Sketch006")
sketch7.AttachmentSupport = (doc.getObject("XY_Plane009"), [""])
sketch7.MapMode = "FlatFace"
sketch7.AttachmentOffset = App.Placement(App.Vector(0, 0, -3), App.Rotation())
sketch7.addGeometry(Part.Circle(App.Vector(70, -19.29598, 0), App.Vector(0, 0, 1), 2.6), False)
sketch7.addConstraint([
    Sketcher.Constraint("Diameter", 0, 5.2),
    Sketcher.Constraint("DistanceX", -1, 1, 0, 3, 70.0),
    Sketcher.Constraint("DistanceY", 0, 3, -1, 1, 19.29598),
])
pad7 = body10.newObject("PartDesign::Pad", "Pad006")
pad7.Profile = sketch7
pad7.Length = 1.5
pad7.Reversed = True
body11 = doc.addObject("PartDesign::Body", "Body010")

# Sketch on XY plane
sketch8 = body11.newObject("Sketcher::SketchObject", "Sketch007")
sketch8.AttachmentSupport = (doc.getObject("XY_Plane010"), [""])
sketch8.MapMode = "FlatFace"
sketch8.AttachmentOffset = App.Placement(App.Vector(0, 0, -3), App.Rotation())
sketch8.addGeometry(Part.Circle(App.Vector(89.397382, 0.101403, 0), App.Vector(0, 0, 1), 2.6), False)
sketch8.addConstraint([
    Sketcher.Constraint("Diameter", 0, 5.2),
    Sketcher.Constraint("DistanceX", -1, 1, 0, 3, 89.397382),
    Sketcher.Constraint("DistanceY", -1, 1, 0, 3, 0.101403),
])
pad8 = body11.newObject("PartDesign::Pad", "Pad007")
pad8.Profile = sketch8
pad8.Length = 1.5
pad8.Reversed = True
body12 = doc.addObject("PartDesign::Body", "Body011")

# Sketch on XY plane
sketch9 = body12.newObject("Sketcher::SketchObject", "Sketch008")
sketch9.AttachmentSupport = (doc.getObject("XY_Plane011"), [""])
sketch9.MapMode = "FlatFace"
sketch9.AttachmentOffset = App.Placement(App.Vector(0, 0, -3), App.Rotation())
sketch9.addGeometry(Part.Circle(App.Vector(70, 19.498785, 0), App.Vector(0, 0, 1), 2.6), False)
sketch9.addConstraint([
    Sketcher.Constraint("Diameter", 0, 5.2),
    Sketcher.Constraint("DistanceX", -1, 1, 0, 3, 70.0),
    Sketcher.Constraint("DistanceY", -1, 1, 0, 3, 19.498785),
])
pad9 = body12.newObject("PartDesign::Pad", "Pad008")
pad9.Profile = sketch9
pad9.Length = 1.5
pad9.Reversed = True
body13 = doc.addObject("PartDesign::Body", "Body012")

# Sketch on XY plane
sketch10 = body13.newObject("Sketcher::SketchObject", "Sketch009")
sketch10.AttachmentSupport = (doc.getObject("XY_Plane012"), [""])
sketch10.MapMode = "FlatFace"
sketch10.AttachmentOffset = App.Placement(App.Vector(0, 0, -3), App.Rotation())
sketch10.addGeometry(Part.Circle(App.Vector(50.602618, 0.101403, 0), App.Vector(0, 0, 1), 2.6), False)
sketch10.addConstraint([
    Sketcher.Constraint("Diameter", 0, 5.2),
    Sketcher.Constraint("DistanceX", -1, 1, 0, 3, 50.602618),
    Sketcher.Constraint("DistanceY", -1, 1, 0, 3, 0.101403),
])
pad10 = body13.newObject("PartDesign::Pad", "Pad009")
pad10.Profile = sketch10
pad10.Length = 1.5
pad10.Reversed = True
body14 = doc.addObject("PartDesign::Body", "Body013")

# Sketch on XY plane
sketch11 = body14.newObject("Sketcher::SketchObject", "Sketch010")
sketch11.AttachmentSupport = (doc.getObject("XY_Plane013"), [""])
sketch11.MapMode = "FlatFace"
sketch11.AttachmentOffset = App.Placement(App.Vector(0, 0, -3), App.Rotation())
sketch11.addGeometry(Part.Circle(App.Vector(50.602618, 0.101403, 0), App.Vector(0, 0, 1), 1.5), False)
sketch11.addConstraint([
    Sketcher.Constraint("Diameter", 0, 3.0),
    Sketcher.Constraint("DistanceX", -1, 1, 0, 3, 50.602618),
    Sketcher.Constraint("DistanceY", -1, 1, 0, 3, 0.101403),
])
pad11 = body14.newObject("PartDesign::Pad", "Pad010")
pad11.Profile = sketch11
pad11.Length = 4
pad11.Reversed = True
body15 = doc.addObject("PartDesign::Body", "Body014")

# Sketch on XY plane
sketch12 = body15.newObject("Sketcher::SketchObject", "Sketch011")
sketch12.AttachmentSupport = (doc.getObject("XY_Plane014"), [""])
sketch12.MapMode = "FlatFace"
sketch12.AttachmentOffset = App.Placement(App.Vector(0, 0, -3), App.Rotation())
sketch12.addGeometry(Part.Circle(App.Vector(70, 19.498785, 0), App.Vector(0, 0, 1), 1.5), False)
sketch12.addConstraint([
    Sketcher.Constraint("Diameter", 0, 3.0),
    Sketcher.Constraint("DistanceX", -1, 1, 0, 3, 70.0),
    Sketcher.Constraint("DistanceY", -1, 1, 0, 3, 19.498785),
])
pad12 = body15.newObject("PartDesign::Pad", "Pad011")
pad12.Profile = sketch12
pad12.Length = 4
pad12.Reversed = True
body16 = doc.addObject("PartDesign::Body", "Body015")

# Sketch on XY plane
sketch13 = body16.newObject("Sketcher::SketchObject", "Sketch012")
sketch13.AttachmentSupport = (doc.getObject("XY_Plane015"), [""])
sketch13.MapMode = "FlatFace"
sketch13.AttachmentOffset = App.Placement(App.Vector(0, 0, -3), App.Rotation())
sketch13.addGeometry(Part.Circle(App.Vector(89.397382, 0.101403, 0), App.Vector(0, 0, 1), 1.5), False)
sketch13.addConstraint([
    Sketcher.Constraint("Diameter", 0, 3.0),
    Sketcher.Constraint("DistanceX", -1, 1, 0, 3, 89.397382),
    Sketcher.Constraint("DistanceY", -1, 1, 0, 3, 0.101403),
])
pad13 = body16.newObject("PartDesign::Pad", "Pad012")
pad13.Profile = sketch13
pad13.Length = 4
pad13.Reversed = True
body17 = doc.addObject("PartDesign::Body", "Body016")

# Sketch on XY plane
sketch14 = body17.newObject("Sketcher::SketchObject", "Sketch013")
sketch14.AttachmentSupport = (doc.getObject("XY_Plane016"), [""])
sketch14.MapMode = "FlatFace"
sketch14.AttachmentOffset = App.Placement(App.Vector(0, 0, -3), App.Rotation())
sketch14.addGeometry(Part.Circle(App.Vector(70, -19.29598, 0), App.Vector(0, 0, 1), 1.5), False)
sketch14.addConstraint([
    Sketcher.Constraint("Diameter", 0, 3.0),
    Sketcher.Constraint("DistanceX", -1, 1, 0, 3, 70.0),
    Sketcher.Constraint("DistanceY", 0, 3, -1, 1, 19.29598),
])
pad14 = body17.newObject("PartDesign::Pad", "Pad013")
pad14.Profile = sketch14
pad14.Length = 4
pad14.Reversed = True
body18 = doc.addObject("PartDesign::Body", "Body017")

# Sketch on XY plane
sketch15 = body18.newObject("Sketcher::SketchObject", "Sketch014")
sketch15.AttachmentSupport = (doc.getObject("XY_Plane017"), [""])
sketch15.MapMode = "FlatFace"
sketch15.AttachmentOffset = App.Placement(App.Vector(0, 0, -3), App.Rotation())
sketch15.addGeometry(Part.Circle(App.Vector(70, 0.1, 0), App.Vector(0, 0, 1), 23.5), False)
sketch15.addConstraint([
    Sketcher.Constraint("Diameter", 0, 47.0),
    Sketcher.Constraint("DistanceX", -1, 1, 0, 3, 70.0),
    Sketcher.Constraint("DistanceY", -1, 1, 0, 3, 0.1),
])
pad15 = body18.newObject("PartDesign::Pad", "Pad014")
pad15.Profile = sketch15
pad15.Length = 4
pad15.Reversed = True
doc.recompute()

boolean9 = body18.newObject("PartDesign::Boolean", "Boolean008")
boolean9.Type = "Cut"
boolean9.addObjects([body17])
doc.recompute()

boolean10 = body18.newObject("PartDesign::Boolean", "Boolean009")
boolean10.Type = "Cut"
boolean10.addObjects([body16])
doc.recompute()

boolean11 = body18.newObject("PartDesign::Boolean", "Boolean010")
boolean11.Type = "Cut"
boolean11.addObjects([body15])
doc.recompute()

boolean12 = body18.newObject("PartDesign::Boolean", "Boolean011")
boolean12.Type = "Cut"
boolean12.addObjects([body14])
doc.recompute()

boolean13 = body18.newObject("PartDesign::Boolean", "Boolean012")
boolean13.Type = "Cut"
boolean13.addObjects([body13])
doc.recompute()

boolean14 = body18.newObject("PartDesign::Boolean", "Boolean013")
boolean14.Type = "Cut"
boolean14.addObjects([body12])
doc.recompute()

boolean15 = body18.newObject("PartDesign::Boolean", "Boolean014")
boolean15.Type = "Cut"
boolean15.addObjects([body11])
doc.recompute()

boolean16 = body18.newObject("PartDesign::Boolean", "Boolean015")
boolean16.Type = "Cut"
boolean16.addObjects([body10])
body19 = doc.addObject("PartDesign::Body", "Body018")
doc.recompute()

body18.Placement = App.Placement(App.Vector(20.573185, -49.468206, 0), App.Rotation(App.Vector(0, 0, 1), 45))
boolean17 = body19.newObject("PartDesign::Boolean", "Boolean016")
boolean17.Type = "Fuse"
boolean17.addObjects([body18])
doc.recompute()

boolean18 = body19.newObject("PartDesign::Boolean", "Boolean017")
boolean18.Type = "Cut"
boolean18.addObjects([body9])
body20 = doc.addObject("PartDesign::Body", "Body019")
doc.recompute()

body19.Placement = App.Placement(App.Vector(-27.831247, -11.66637, 3.7), App.Rotation(App.Vector(1, 0, 0), 180))
boolean19 = body20.newObject("PartDesign::Boolean", "Boolean018")
boolean19.Type = "Fuse"
boolean19.addObjects([body19])

doc.recompute()
